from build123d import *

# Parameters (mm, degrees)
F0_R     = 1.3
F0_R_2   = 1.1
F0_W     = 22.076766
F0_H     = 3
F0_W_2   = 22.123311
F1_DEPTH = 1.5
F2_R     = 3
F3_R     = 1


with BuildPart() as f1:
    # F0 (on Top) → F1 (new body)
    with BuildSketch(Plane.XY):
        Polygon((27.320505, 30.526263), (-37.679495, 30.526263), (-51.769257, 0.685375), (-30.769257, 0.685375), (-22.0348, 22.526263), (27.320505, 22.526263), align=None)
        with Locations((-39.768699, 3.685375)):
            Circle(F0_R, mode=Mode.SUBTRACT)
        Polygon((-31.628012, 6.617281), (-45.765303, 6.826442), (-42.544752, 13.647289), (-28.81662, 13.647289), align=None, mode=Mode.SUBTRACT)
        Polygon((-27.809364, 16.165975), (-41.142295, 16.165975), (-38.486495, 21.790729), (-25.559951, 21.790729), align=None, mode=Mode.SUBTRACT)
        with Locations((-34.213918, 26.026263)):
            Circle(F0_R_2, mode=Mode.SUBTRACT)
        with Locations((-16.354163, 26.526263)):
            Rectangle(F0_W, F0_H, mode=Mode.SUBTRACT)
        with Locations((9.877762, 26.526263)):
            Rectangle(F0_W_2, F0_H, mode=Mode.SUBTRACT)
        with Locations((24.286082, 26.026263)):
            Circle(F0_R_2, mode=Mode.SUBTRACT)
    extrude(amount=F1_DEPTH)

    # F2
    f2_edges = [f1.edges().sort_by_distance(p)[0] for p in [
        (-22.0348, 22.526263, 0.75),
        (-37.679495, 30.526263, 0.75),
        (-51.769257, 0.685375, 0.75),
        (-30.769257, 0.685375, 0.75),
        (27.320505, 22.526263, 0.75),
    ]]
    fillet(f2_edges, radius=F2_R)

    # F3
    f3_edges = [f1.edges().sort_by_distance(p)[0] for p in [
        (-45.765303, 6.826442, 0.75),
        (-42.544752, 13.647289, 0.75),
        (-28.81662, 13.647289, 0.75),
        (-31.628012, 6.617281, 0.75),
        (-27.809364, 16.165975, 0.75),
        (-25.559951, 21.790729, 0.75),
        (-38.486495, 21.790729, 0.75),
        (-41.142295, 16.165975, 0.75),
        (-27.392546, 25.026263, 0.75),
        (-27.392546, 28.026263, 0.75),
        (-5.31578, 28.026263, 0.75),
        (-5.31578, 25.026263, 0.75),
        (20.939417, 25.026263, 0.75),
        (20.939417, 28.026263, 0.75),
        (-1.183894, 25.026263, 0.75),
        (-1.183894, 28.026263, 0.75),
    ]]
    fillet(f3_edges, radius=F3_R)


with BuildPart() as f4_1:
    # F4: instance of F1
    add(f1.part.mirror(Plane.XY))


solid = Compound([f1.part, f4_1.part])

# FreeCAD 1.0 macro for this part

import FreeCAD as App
import Part
import Sketcher
from FreeCAD import Vector
Q = App.Units.Quantity


def edges_at(feature, points):
    """Names of the edges that pass closest to the given points."""
    edges = feature.Shape.Edges
    near = lambda p: min(range(len(edges)), key=lambda i: edges[i].distToShape(Part.Vertex(*p))[0])
    return sorted({f"Edge{near(p) + 1}" for p in points})

doc = App.newDocument("Part")
params = doc.addObject("Spreadsheet::Sheet", "Params")
for row, (alias, value) in enumerate([
    ("sketch1_diameter", "2.6 mm"),
    ("sketch1_diameter2", "2.2 mm"),
    ("sketch1_width", "65 mm"),
    ("sketch1_width2", "21 mm"),
    ("sketch1_height", "8 mm"),
    ("pad1_length", "1.5 mm"),
    ("fillet_radius", "3 mm"),
    ("fillet2_radius", "1 mm"),
], start=1):
    params.set(f"A{row}", alias)
    params.set(f"B{row}", "=" + value)
    params.setAlias(f"B{row}", alias)

body = doc.addObject("PartDesign::Body", "Body")

# Sketch on XY plane
sketch1 = body.newObject("Sketcher::SketchObject", "Sketch")
sketch1.AttachmentSupport = (doc.getObject("XY_Plane"), [""])
sketch1.MapMode = "FlatFace"
sketch1.addGeometry([
    Part.LineSegment(Vector(27.320505, 30.526263, 0), Vector(-37.679495, 30.526263, 0)),  # 0
    Part.LineSegment(Vector(-37.679495, 30.526263, 0), Vector(-51.769257, 0.685375, 0)),  # 1
    Part.LineSegment(Vector(-51.769257, 0.685375, 0), Vector(-30.769257, 0.685375, 0)),  # 2
    Part.LineSegment(Vector(-30.769257, 0.685375, 0), Vector(-22.0348, 22.526263, 0)),  # 3
    Part.LineSegment(Vector(-22.0348, 22.526263, 0), Vector(27.320505, 22.526263, 0)),  # 4
    Part.LineSegment(Vector(27.320505, 22.526263, 0), Vector(27.320505, 30.526263, 0)),  # 5
    Part.Circle(Vector(-39.768699, 3.685375, 0), Vector(0, 0, 1), 1.3),  # 6
    Part.LineSegment(Vector(-28.81662, 13.647289, 0), Vector(-31.628012, 6.617281, 0)),  # 7
    Part.LineSegment(Vector(-31.628012, 6.617281, 0), Vector(-45.765303, 6.826442, 0)),  # 8
    Part.LineSegment(Vector(-45.765303, 6.826442, 0), Vector(-42.544752, 13.647289, 0)),  # 9
    Part.LineSegment(Vector(-42.544752, 13.647289, 0), Vector(-28.81662, 13.647289, 0)),  # 10
    Part.LineSegment(Vector(-25.559951, 21.790729, 0), Vector(-27.809364, 16.165975, 0)),  # 11
    Part.LineSegment(Vector(-27.809364, 16.165975, 0), Vector(-41.142295, 16.165975, 0)),  # 12
    Part.LineSegment(Vector(-41.142295, 16.165975, 0), Vector(-38.486495, 21.790729, 0)),  # 13
    Part.LineSegment(Vector(-38.486495, 21.790729, 0), Vector(-25.559951, 21.790729, 0)),  # 14
    Part.Circle(Vector(-34.213918, 26.026263, 0), Vector(0, 0, 1), 1.1),  # 15
    Part.LineSegment(Vector(-5.31578, 25.026263, 0), Vector(-27.392546, 25.026263, 0)),  # 16
    Part.LineSegment(Vector(-27.392546, 25.026263, 0), Vector(-27.392546, 28.026263, 0)),  # 17
    Part.LineSegment(Vector(-27.392546, 28.026263, 0), Vector(-5.31578, 28.026263, 0)),  # 18
    Part.LineSegment(Vector(-5.31578, 28.026263, 0), Vector(-5.31578, 25.026263, 0)),  # 19
    Part.LineSegment(Vector(20.939418, 25.026263, 0), Vector(-1.183893, 25.026263, 0)),  # 20
    Part.LineSegment(Vector(-1.183893, 25.026263, 0), Vector(-1.183893, 28.026263, 0)),  # 21
    Part.LineSegment(Vector(-1.183893, 28.026263, 0), Vector(20.939418, 28.026263, 0)),  # 22
    Part.LineSegment(Vector(20.939418, 28.026263, 0), Vector(20.939418, 25.026263, 0)),  # 23
    Part.Circle(Vector(24.286082, 26.026263, 0), Vector(0, 0, 1), 1.1),  # 24
], False)
sketch1.addConstraint([
    Sketcher.Constraint("Coincident", 0, 2, 1, 1),
    Sketcher.Constraint("Coincident", 1, 2, 2, 1),
    Sketcher.Constraint("Coincident", 2, 2, 3, 1),
    Sketcher.Constraint("Coincident", 3, 2, 4, 1),
    Sketcher.Constraint("Coincident", 4, 2, 5, 1),
    Sketcher.Constraint("Coincident", 5, 2, 0, 1),
    Sketcher.Constraint("Coincident", 7, 2, 8, 1),
    Sketcher.Constraint("Coincident", 8, 2, 9, 1),
    Sketcher.Constraint("Coincident", 9, 2, 10, 1),
    Sketcher.Constraint("Coincident", 10, 2, 7, 1),
    Sketcher.Constraint("Coincident", 11, 2, 12, 1),
    Sketcher.Constraint("Coincident", 12, 2, 13, 1),
    Sketcher.Constraint("Coincident", 13, 2, 14, 1),
    Sketcher.Constraint("Coincident", 14, 2, 11, 1),
    Sketcher.Constraint("Coincident", 16, 2, 17, 1),
    Sketcher.Constraint("Coincident", 17, 2, 18, 1),
    Sketcher.Constraint("Coincident", 18, 2, 19, 1),
    Sketcher.Constraint("Coincident", 19, 2, 16, 1),
    Sketcher.Constraint("Coincident", 20, 2, 21, 1),
    Sketcher.Constraint("Coincident", 21, 2, 22, 1),
    Sketcher.Constraint("Coincident", 22, 2, 23, 1),
    Sketcher.Constraint("Coincident", 23, 2, 20, 1),
    Sketcher.Constraint("Horizontal", 0),
    Sketcher.Constraint("Horizontal", 2),
    Sketcher.Constraint("Horizontal", 4),
    Sketcher.Constraint("Vertical", 5),
    Sketcher.Constraint("Horizontal", 10),
    Sketcher.Constraint("Horizontal", 12),
    Sketcher.Constraint("Horizontal", 14),
    Sketcher.Constraint("Horizontal", 16),
    Sketcher.Constraint("Vertical", 17),
    Sketcher.Constraint("Horizontal", 18),
    Sketcher.Constraint("Vertical", 19),
    Sketcher.Constraint("Horizontal", 20),
    Sketcher.Constraint("Vertical", 21),
    Sketcher.Constraint("Horizontal", 22),
    Sketcher.Constraint("Vertical", 23),
    Sketcher.Constraint("Equal", 15, 24),
    Sketcher.Constraint("Parallel", 3, 7),
    Sketcher.Constraint("Parallel", 1, 9),
    Sketcher.Constraint("Parallel", 7, 11),
    Sketcher.Constraint("Parallel", 9, 13),
    Sketcher.Constraint("Horizontal", 15, 3, 24, 3),
    Sketcher.Constraint("Horizontal", 19, 2, 20, 2),
    Sketcher.Constraint("Horizontal", 18, 2, 21, 2),
    Sketcher.Constraint("Diameter", 6, Q("2.6 mm")),
    Sketcher.Constraint("Diameter", 15, Q("2.2 mm")),
    Sketcher.Constraint("DistanceX", 0, 2, 0, 1, Q("65 mm")),
    Sketcher.Constraint("DistanceX", 2, 1, 2, 2, Q("21 mm")),
    Sketcher.Constraint("DistanceY", 5, 1, 5, 2, Q("8 mm")),
    Sketcher.Constraint("DistanceY", 17, 1, 17, 2, Q("3 mm")),
    Sketcher.Constraint("Distance", 1, Q("33 mm")),
    Sketcher.Constraint("DistanceY", 1, 2, 6, 3, Q("3 mm")),
    Sketcher.Constraint("DistanceY", 16, 2, 15, 3, Q("1 mm")),
    Sketcher.Constraint("DistanceX", 15, 3, 24, 3, Q("58.5 mm")),
    Sketcher.Constraint("DistanceY", 15, 3, 0, 2, Q("4.5 mm")),
    Sketcher.Constraint("DistanceX", 13, 2, 0, 2, Q("0.807 mm")),
    Sketcher.Constraint("DistanceX", 12, 2, 12, 1, Q("13.332931 mm")),
    Sketcher.Constraint("DistanceX", 20, 2, 20, 1, Q("22.123311 mm")),
    Sketcher.Constraint("DistanceX", 6, 3, -1, 1, Q("39.768699 mm")),
    Sketcher.Constraint("DistanceX", 3, 2, -1, 1, Q("22.0348 mm")),
    Sketcher.Constraint("DistanceY", 6, 3, 12, 2, Q("12.4806 mm")),
    Sketcher.Constraint("DistanceX", 12, 2, 13, 2, Q("2.6558 mm")),
    Sketcher.Constraint("Distance", 3, Q("23.522651 mm")),
    Sketcher.Constraint("Distance", 8, Q("14.138838 mm")),
    Sketcher.Constraint("Distance", 13, Q("6.22022 mm")),
    Sketcher.Constraint("DistanceX", 10, 1, 10, 2, Q("13.728132 mm")),
    Sketcher.Constraint("DistanceX", 16, 2, 16, 1, Q("22.076766 mm")),
    Sketcher.Constraint("DistanceX", 7, 2, -1, 1, Q("31.628012 mm")),
    Sketcher.Constraint("DistanceY", -1, 1, 7, 2, Q("6.617281 mm")),
    Sketcher.Constraint("DistanceY", -1, 1, 9, 2, Q("13.647289 mm")),
    Sketcher.Constraint("DistanceY", -1, 1, 13, 2, Q("21.790729 mm")),
    Sketcher.Constraint("DistanceX", 18, 2, -1, 1, Q("5.31578 mm")),
    Sketcher.Constraint("DistanceX", 6, 3, 15, 3, Q("5.554781 mm")),
    Sketcher.Constraint("DistanceX", 20, 2, -1, 1, Q("1.183893 mm")),
])
sketch1.setExpression("Constraints[45]", "Params.sketch1_diameter")
sketch1.setExpression("Constraints[46]", "Params.sketch1_diameter2")
sketch1.setExpression("Constraints[47]", "Params.sketch1_width")
sketch1.setExpression("Constraints[48]", "Params.sketch1_width2")
sketch1.setExpression("Constraints[49]", "Params.sketch1_height")
pad1 = body.newObject("PartDesign::Pad", "Pad")
pad1.Profile = sketch1
pad1.setExpression("Length", "Params.pad1_length")
doc.recompute()

fillet = body.newObject("PartDesign::Fillet", "Fillet")
fillet.Base = (pad1, edges_at(pad1, [
    (-22.035, 22.526, 0.75),
    (-37.679, 30.526, 0.75),
    (-51.769, 0.685, 0.75),
    (-30.769, 0.685, 0.75),
    (27.321, 22.526, 0.75),
]))
fillet.setExpression("Radius", "Params.fillet_radius")
doc.recompute()

fillet2 = body.newObject("PartDesign::Fillet", "Fillet001")
fillet2.Base = (fillet, edges_at(fillet, [
    (-45.765, 6.826, 0.75),
    (-42.545, 13.647, 0.75),
    (-28.817, 13.647, 0.75),
    (-31.628, 6.617, 0.75),
    (-27.809, 16.166, 0.75),
    (-25.56, 21.791, 0.75),
    (-38.486, 21.791, 0.75),
    (-41.142, 16.166, 0.75),
    (-27.393, 25.026, 0.75),
    (-27.393, 28.026, 0.75),
    (-5.316, 28.026, 0.75),
    (-5.316, 25.026, 0.75),
    (20.939, 25.026, 0.75),
    (20.939, 28.026, 0.75),
    (-1.184, 25.026, 0.75),
    (-1.184, 28.026, 0.75),
]))
fillet2.setExpression("Radius", "Params.fillet2_radius")
body2 = doc.addObject("PartDesign::Body", "Body001")
doc.recompute()

mirroring = doc.addObject("Part::Mirroring", "Mirroring")
mirroring.Source = body
mirroring.Base = Vector(0, 0, 0)
mirroring.Normal = Vector(0, 0, 1)
body2.BaseFeature = mirroring
doc.recompute()
mirroring.Visibility = False

doc.recompute()
